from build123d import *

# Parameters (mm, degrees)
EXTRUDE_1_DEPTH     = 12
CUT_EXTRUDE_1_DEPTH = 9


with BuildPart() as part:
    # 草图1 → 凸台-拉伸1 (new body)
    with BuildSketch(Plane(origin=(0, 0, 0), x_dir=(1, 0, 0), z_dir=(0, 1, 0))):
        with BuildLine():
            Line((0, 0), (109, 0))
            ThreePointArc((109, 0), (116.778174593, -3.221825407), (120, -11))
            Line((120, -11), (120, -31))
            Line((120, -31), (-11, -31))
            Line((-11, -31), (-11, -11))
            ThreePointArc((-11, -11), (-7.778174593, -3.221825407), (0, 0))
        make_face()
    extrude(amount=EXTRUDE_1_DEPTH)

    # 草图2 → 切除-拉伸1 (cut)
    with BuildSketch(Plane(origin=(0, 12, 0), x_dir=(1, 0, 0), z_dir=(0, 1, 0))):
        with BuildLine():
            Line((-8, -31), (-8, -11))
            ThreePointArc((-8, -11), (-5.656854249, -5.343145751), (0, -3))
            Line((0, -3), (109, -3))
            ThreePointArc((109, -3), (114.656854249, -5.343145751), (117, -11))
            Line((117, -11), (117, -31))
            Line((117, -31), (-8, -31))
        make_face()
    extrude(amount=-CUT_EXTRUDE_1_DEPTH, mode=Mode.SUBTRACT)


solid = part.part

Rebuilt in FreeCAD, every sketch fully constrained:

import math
import FreeCAD as App
import Part
import Sketcher
from FreeCAD import Vector

doc = App.newDocument("Part")
body = doc.addObject("PartDesign::Body", "Body")

# Sketch on XZ plane
sketch1 = body.newObject("Sketcher::SketchObject", "Sketch")
sketch1.AttachmentSupport = (doc.getObject("XZ_Plane"), [""])
sketch1.MapMode = "FlatFace"
sketch1.addGeometry([
    Part.LineSegment(Vector(109, 0, 0), Vector(0, 0, 0)),  # 0
    Part.ArcOfCircle(Part.Circle(Vector(0, 11, 0), Vector(0, 0, 1), 11), math.radians(180), math.radians(270)),  # 1
    Part.LineSegment(Vector(-11, 11, 0), Vector(-11, 31, 0)),  # 2
    Part.LineSegment(Vector(-11, 31, 0), Vector(120, 31, 0)),  # 3
    Part.LineSegment(Vector(120, 31, 0), Vector(120, 11, 0)),  # 4
    Part.ArcOfCircle(Part.Circle(Vector(109, 11, 0), Vector(0, 0, 1), 11), math.radians(-90), math.radians(0)),  # 5
], False)
sketch1.addConstraint([
    Sketcher.Constraint("Tangent", 0, 2, 1, 2),
    Sketcher.Constraint("Tangent", 1, 1, 2, 1),
    Sketcher.Constraint("Coincident", 2, 2, 3, 1),
    Sketcher.Constraint("Coincident", 3, 2, 4, 1),
    Sketcher.Constraint("Tangent", 4, 2, 5, 2),
    Sketcher.Constraint("Tangent", 5, 1, 0, 1),
    Sketcher.Constraint("Horizontal", 0),
    Sketcher.Constraint("Vertical", 2),
    Sketcher.Constraint("Horizontal", 3),
    Sketcher.Constraint("Vertical", 4),
    Sketcher.Constraint("Coincident", 0, 2, -1, 1),
    Sketcher.Constraint("Equal", 1, 5),
    Sketcher.Constraint("Radius", 1, 11.0),
    Sketcher.Constraint("DistanceX", 0, 2, 0, 1, 109.0),
    Sketcher.Constraint("DistanceY", 2, 1, 2, 2, 20.0),
])
pad1 = body.newObject("PartDesign::Pad", "Pad")
pad1.Profile = sketch1
pad1.Length = 12
pad1.Reversed = True

# Sketch on XZ plane
sketch2 = body.newObject("Sketcher::SketchObject", "Sketch001")
sketch2.AttachmentSupport = (doc.getObject("XZ_Plane"), [""])
sketch2.MapMode = "FlatFace"
sketch2.AttachmentOffset = App.Placement(Vector(0, 0, -12), App.Rotation())
sketch2.addGeometry([
    Part.LineSegment(Vector(-8, 11, 0), Vector(-8, 31, 0)),  # 0
    Part.LineSegment(Vector(-8, 31, 0), Vector(117, 31, 0)),  # 1
    Part.LineSegment(Vector(117, 31, 0), Vector(117, 11, 0)),  # 2
    Part.ArcOfCircle(Part.Circle(Vector(109, 11, 0), Vector(0, 0, 1), 8), math.radians(-90), math.radians(0)),  # 3
    Part.LineSegment(Vector(109, 3, 0), Vector(0, 3, 0)),  # 4
    Part.ArcOfCircle(Part.Circle(Vector(0, 11, 0), Vector(0, 0, 1), 8), math.radians(-180), math.radians(-90)),  # 5
], False)
sketch2.addConstraint([
    Sketcher.Constraint("Coincident", 0, 2, 1, 1),
    Sketcher.Constraint("Coincident", 1, 2, 2, 1),
    Sketcher.Constraint("Tangent", 2, 2, 3, 2),
    Sketcher.Constraint("Tangent", 3, 1, 4, 1),
    Sketcher.Constraint("Tangent", 4, 2, 5, 2),
    Sketcher.Constraint("Tangent", 5, 1, 0, 1),
    Sketcher.Constraint("Vertical", 0),
    Sketcher.Constraint("Horizontal", 1),
    Sketcher.Constraint("Vertical", 2),
    Sketcher.Constraint("Horizontal", 4),
    Sketcher.Constraint("Equal", 3, 5),
    Sketcher.Constraint("PointOnObject", 5, 3, -2),
    Sketcher.Constraint("Radius", 3, 8.0),
    Sketcher.Constraint("DistanceX", 1, 1, 1, 2, 125.0),
    Sketcher.Constraint("DistanceY", 0, 1, 0, 2, 20.0),
    Sketcher.Constraint("DistanceY", -1, 1, 3, 3, 11.0),
])
pocket1 = body.newObject("PartDesign::Pocket", "Pocket")
pocket1.Profile = sketch2
pocket1.Length = 9
pocket1.Reversed = True

doc.recompute()
